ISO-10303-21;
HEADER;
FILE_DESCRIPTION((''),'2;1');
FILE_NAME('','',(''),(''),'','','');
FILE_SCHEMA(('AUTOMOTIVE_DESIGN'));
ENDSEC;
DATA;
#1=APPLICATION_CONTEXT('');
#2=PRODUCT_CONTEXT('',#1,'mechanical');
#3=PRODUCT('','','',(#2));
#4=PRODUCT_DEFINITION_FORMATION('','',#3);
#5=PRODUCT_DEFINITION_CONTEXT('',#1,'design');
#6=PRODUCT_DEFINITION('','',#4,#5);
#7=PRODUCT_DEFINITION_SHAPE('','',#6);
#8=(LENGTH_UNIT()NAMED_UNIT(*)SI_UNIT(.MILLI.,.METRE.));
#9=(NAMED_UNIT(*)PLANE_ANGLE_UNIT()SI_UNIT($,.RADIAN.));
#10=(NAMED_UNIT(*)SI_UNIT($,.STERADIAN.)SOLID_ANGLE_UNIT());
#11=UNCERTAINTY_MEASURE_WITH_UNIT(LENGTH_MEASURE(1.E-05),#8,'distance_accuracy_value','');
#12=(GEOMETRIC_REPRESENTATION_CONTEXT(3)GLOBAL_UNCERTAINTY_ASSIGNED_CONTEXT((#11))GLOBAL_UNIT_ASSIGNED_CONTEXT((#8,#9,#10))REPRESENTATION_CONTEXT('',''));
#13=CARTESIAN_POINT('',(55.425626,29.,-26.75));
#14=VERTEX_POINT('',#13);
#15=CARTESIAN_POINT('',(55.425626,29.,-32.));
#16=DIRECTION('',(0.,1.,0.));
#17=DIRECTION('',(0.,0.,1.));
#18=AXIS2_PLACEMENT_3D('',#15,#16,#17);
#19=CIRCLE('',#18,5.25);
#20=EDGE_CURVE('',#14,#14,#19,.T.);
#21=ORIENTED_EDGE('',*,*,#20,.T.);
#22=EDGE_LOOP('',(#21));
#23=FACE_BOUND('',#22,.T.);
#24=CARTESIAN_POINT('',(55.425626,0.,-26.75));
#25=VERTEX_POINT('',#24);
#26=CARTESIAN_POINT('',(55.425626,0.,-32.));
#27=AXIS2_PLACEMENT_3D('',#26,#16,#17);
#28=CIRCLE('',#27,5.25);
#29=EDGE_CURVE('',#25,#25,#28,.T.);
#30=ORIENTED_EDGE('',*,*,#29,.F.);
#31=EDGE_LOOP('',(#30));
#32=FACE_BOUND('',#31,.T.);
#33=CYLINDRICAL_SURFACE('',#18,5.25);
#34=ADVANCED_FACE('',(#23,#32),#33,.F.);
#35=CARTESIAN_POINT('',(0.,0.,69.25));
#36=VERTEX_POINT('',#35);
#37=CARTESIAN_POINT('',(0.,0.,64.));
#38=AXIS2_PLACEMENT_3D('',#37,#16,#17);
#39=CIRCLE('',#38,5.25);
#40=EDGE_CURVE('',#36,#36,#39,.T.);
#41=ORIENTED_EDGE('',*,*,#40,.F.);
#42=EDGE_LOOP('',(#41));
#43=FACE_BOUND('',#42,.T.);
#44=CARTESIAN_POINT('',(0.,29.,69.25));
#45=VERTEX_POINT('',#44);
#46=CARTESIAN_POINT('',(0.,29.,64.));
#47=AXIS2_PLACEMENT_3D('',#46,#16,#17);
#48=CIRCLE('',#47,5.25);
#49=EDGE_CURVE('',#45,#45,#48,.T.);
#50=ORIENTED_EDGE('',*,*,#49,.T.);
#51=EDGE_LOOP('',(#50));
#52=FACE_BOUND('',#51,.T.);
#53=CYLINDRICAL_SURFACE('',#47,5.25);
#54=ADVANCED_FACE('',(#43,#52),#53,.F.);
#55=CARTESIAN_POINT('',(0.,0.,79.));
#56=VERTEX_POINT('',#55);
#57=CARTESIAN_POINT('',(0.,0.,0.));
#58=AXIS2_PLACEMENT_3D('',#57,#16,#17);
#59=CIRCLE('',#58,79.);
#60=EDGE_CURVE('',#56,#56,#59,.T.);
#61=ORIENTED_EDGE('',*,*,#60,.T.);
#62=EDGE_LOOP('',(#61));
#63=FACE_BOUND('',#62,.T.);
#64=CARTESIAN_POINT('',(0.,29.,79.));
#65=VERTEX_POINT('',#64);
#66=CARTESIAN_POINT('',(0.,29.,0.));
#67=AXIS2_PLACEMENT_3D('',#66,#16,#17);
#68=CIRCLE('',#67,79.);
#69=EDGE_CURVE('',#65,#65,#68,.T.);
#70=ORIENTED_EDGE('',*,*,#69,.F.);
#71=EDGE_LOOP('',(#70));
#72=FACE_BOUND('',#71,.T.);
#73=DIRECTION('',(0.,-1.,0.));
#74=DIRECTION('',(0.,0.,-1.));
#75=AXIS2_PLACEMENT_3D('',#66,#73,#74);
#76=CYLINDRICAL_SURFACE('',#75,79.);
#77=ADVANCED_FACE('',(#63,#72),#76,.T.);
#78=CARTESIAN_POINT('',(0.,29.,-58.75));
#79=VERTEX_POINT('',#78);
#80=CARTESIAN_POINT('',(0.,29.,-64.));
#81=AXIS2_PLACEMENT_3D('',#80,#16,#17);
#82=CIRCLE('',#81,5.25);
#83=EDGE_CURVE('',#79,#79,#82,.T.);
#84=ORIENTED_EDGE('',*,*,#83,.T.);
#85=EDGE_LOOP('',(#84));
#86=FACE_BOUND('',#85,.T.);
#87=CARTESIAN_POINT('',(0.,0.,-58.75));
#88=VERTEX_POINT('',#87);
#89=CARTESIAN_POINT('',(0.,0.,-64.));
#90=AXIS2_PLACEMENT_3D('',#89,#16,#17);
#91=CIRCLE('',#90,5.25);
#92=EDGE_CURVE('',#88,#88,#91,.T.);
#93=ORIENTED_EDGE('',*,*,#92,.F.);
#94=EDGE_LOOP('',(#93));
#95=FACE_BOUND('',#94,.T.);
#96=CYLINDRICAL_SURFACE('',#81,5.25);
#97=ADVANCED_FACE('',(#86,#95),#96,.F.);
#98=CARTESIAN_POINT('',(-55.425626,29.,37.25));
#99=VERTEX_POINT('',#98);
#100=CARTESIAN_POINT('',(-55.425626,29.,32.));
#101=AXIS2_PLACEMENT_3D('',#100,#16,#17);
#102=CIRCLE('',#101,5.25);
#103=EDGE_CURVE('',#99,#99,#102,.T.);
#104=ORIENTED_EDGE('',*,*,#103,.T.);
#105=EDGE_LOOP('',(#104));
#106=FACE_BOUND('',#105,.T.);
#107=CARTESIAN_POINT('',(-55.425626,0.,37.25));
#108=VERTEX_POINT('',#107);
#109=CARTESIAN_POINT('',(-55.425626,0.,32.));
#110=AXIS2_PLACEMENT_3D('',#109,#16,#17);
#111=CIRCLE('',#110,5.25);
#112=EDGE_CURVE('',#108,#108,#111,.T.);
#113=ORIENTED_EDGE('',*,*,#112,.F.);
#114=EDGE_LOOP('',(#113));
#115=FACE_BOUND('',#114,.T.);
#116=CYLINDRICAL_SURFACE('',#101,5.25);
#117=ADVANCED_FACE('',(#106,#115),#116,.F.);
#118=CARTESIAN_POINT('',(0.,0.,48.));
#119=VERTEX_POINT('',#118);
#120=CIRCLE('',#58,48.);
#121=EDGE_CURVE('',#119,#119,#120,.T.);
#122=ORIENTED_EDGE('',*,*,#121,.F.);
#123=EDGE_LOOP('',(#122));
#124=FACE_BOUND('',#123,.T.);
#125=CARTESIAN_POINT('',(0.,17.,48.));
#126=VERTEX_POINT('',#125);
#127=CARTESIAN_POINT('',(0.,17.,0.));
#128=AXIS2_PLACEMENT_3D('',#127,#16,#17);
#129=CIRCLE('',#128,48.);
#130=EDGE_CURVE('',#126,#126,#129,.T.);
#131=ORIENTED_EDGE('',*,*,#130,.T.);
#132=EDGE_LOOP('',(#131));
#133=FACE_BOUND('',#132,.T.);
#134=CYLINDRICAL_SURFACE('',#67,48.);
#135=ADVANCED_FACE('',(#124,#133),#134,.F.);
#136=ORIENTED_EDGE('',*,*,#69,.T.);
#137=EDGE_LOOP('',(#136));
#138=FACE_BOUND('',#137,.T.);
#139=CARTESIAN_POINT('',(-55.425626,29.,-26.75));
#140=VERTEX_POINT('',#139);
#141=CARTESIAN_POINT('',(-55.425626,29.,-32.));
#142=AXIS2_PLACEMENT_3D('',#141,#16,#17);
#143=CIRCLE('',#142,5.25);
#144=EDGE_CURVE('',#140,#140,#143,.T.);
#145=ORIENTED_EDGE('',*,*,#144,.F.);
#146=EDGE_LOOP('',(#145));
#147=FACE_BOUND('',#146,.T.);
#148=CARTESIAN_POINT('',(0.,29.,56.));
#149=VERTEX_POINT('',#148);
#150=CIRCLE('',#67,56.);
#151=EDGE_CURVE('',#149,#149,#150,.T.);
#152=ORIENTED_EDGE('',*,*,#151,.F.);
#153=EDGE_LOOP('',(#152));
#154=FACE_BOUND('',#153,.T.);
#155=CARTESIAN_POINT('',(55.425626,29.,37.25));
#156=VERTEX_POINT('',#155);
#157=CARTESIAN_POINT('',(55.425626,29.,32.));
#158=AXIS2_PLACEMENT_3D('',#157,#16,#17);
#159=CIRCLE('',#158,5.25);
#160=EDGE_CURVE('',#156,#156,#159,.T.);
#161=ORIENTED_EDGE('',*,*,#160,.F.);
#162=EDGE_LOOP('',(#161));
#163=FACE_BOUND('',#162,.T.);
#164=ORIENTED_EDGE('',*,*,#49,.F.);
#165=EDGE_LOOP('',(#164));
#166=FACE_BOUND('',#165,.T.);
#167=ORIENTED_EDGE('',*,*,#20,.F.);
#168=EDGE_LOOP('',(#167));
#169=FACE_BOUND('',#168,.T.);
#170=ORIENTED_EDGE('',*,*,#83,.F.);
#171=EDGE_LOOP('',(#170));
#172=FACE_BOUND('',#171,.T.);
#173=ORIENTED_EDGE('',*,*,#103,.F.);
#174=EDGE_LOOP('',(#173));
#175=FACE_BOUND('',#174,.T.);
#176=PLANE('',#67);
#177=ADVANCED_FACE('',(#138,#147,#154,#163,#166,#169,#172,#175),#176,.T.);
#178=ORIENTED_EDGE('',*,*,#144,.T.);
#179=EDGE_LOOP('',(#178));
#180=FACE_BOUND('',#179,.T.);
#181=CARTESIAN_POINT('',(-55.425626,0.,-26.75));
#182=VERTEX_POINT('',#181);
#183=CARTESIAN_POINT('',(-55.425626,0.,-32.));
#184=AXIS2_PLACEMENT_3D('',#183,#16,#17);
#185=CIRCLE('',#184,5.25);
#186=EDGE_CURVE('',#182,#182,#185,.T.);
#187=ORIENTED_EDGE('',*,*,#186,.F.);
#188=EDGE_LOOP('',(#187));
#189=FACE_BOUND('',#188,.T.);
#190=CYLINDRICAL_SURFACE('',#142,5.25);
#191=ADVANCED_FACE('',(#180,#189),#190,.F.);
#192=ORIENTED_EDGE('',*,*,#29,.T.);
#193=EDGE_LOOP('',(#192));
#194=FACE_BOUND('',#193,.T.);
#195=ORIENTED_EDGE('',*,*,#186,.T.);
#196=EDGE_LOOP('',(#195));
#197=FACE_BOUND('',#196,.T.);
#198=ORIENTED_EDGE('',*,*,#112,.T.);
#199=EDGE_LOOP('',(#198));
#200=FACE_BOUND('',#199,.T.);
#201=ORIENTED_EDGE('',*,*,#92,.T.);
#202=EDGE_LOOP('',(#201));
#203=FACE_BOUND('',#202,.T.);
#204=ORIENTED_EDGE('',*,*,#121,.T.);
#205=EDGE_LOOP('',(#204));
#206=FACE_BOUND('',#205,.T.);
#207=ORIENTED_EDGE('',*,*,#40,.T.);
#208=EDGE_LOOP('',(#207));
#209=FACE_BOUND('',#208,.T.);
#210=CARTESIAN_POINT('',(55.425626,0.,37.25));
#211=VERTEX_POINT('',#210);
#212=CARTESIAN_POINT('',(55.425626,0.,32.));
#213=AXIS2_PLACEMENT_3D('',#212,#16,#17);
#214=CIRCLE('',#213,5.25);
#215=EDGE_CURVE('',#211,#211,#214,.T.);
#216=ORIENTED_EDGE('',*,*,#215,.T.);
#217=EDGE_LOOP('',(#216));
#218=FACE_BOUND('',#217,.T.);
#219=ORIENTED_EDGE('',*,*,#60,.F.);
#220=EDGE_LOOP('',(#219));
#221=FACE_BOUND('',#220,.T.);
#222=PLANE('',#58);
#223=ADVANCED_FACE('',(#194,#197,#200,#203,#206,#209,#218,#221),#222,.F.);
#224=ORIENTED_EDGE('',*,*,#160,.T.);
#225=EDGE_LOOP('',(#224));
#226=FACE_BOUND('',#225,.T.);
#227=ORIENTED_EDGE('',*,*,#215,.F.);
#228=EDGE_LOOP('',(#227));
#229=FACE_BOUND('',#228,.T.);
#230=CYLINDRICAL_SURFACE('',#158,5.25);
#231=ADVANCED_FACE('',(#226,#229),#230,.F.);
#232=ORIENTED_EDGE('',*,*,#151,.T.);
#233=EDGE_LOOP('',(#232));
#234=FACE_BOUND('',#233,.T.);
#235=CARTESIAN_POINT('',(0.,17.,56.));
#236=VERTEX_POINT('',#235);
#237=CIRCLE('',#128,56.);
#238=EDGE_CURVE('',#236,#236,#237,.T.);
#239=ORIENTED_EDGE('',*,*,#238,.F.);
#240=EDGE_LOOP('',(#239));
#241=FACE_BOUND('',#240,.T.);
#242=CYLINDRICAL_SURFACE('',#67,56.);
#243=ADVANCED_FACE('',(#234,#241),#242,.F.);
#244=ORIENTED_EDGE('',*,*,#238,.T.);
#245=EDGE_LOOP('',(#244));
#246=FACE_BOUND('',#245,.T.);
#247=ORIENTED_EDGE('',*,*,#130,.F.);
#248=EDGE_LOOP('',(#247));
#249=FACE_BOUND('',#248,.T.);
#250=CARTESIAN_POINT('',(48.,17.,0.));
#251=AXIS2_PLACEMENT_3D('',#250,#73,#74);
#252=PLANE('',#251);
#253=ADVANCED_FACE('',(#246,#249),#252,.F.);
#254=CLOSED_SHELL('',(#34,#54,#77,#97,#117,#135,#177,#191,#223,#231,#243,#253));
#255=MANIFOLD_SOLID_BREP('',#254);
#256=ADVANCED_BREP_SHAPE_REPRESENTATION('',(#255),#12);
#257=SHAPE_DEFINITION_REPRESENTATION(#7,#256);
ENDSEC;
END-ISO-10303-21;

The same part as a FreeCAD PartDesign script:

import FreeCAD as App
import Part
import Sketcher
Q = App.Units.Quantity

doc = App.newDocument("Part")
body = doc.addObject("PartDesign::Body", "Body")

# Sketch on XZ plane
sketch1 = body.newObject("Sketcher::SketchObject", "Sketch")
sketch1.AttachmentSupport = (doc.getObject("XZ_Plane"), [""])
sketch1.MapMode = "FlatFace"
sketch1.addGeometry(Part.Circle(App.Vector(0, 0, 0), App.Vector(0, 0, 1), 79), False)
sketch1.addConstraint([
    Sketcher.Constraint("Coincident", 0, 3, -1, 1),
    Sketcher.Constraint("Diameter", 0, Q("158 mm")),
])
pad1 = body.newObject("PartDesign::Pad", "Pad")
pad1.Profile = sketch1
pad1.Length = 29
pad1.Reversed = True

# Sketch on XZ plane
sketch2 = body.newObject("Sketcher::SketchObject", "Sketch001")
sketch2.AttachmentSupport = (doc.getObject("XZ_Plane"), [""])
sketch2.MapMode = "FlatFace"
sketch2.AttachmentOffset = App.Placement(App.Vector(0, 0, -29), App.Rotation())
sketch2.addGeometry(Part.Circle(App.Vector(0, 0, 0), App.Vector(0, 0, 1), 48), False)
sketch2.addConstraint([
    Sketcher.Constraint("Coincident", 0, 3, -1, 1),
    Sketcher.Constraint("Diameter", 0, Q("96 mm")),
])
doc.recompute()
hole = body.newObject("PartDesign::Hole", "Hole")
hole.Profile = sketch2
hole.ThreadType = "None"
hole.Diameter = 96
hole.DepthType = "ThroughAll"
hole.HoleCutType = "Counterbore"
hole.HoleCutDiameter = 112
hole.HoleCutDepth = 12
hole.Reversed = True

# Sketch on XZ plane
sketch3 = body.newObject("Sketcher::SketchObject", "Sketch002")
sketch3.AttachmentSupport = (doc.getObject("XZ_Plane"), [""])
sketch3.MapMode = "FlatFace"
sketch3.AttachmentOffset = App.Placement(App.Vector(0, 0, -29), App.Rotation())
sketch3.addGeometry(Part.Circle(App.Vector(55.425626, 32, 0), App.Vector(0, 0, 1), 5.25), False)
sketch3.addConstraint([
    Sketcher.Constraint("Diameter", 0, Q("10.5 mm")),
    Sketcher.Constraint("DistanceY", -1, 1, 0, 3, Q("32 mm")),
    Sketcher.Constraint("DistanceX", -1, 1, 0, 3, Q("55.425626 mm")),
])
doc.recompute()
hole2 = body.newObject("PartDesign::Hole", "Hole001")
hole2.Profile = sketch3
hole2.ThreadType = "None"
hole2.Diameter = 10.5
hole2.DepthType = "ThroughAll"
hole2.Reversed = True
doc.recompute()

polarpattern = body.newObject("PartDesign::PolarPattern", "PolarPattern")
polarpattern.Originals = [hole2]
polarpattern.Axis = (doc.getObject("Y_Axis"), [""])
polarpattern.Angle = 360
polarpattern.Occurrences = 6
body.Tip = polarpattern

doc.recompute()
